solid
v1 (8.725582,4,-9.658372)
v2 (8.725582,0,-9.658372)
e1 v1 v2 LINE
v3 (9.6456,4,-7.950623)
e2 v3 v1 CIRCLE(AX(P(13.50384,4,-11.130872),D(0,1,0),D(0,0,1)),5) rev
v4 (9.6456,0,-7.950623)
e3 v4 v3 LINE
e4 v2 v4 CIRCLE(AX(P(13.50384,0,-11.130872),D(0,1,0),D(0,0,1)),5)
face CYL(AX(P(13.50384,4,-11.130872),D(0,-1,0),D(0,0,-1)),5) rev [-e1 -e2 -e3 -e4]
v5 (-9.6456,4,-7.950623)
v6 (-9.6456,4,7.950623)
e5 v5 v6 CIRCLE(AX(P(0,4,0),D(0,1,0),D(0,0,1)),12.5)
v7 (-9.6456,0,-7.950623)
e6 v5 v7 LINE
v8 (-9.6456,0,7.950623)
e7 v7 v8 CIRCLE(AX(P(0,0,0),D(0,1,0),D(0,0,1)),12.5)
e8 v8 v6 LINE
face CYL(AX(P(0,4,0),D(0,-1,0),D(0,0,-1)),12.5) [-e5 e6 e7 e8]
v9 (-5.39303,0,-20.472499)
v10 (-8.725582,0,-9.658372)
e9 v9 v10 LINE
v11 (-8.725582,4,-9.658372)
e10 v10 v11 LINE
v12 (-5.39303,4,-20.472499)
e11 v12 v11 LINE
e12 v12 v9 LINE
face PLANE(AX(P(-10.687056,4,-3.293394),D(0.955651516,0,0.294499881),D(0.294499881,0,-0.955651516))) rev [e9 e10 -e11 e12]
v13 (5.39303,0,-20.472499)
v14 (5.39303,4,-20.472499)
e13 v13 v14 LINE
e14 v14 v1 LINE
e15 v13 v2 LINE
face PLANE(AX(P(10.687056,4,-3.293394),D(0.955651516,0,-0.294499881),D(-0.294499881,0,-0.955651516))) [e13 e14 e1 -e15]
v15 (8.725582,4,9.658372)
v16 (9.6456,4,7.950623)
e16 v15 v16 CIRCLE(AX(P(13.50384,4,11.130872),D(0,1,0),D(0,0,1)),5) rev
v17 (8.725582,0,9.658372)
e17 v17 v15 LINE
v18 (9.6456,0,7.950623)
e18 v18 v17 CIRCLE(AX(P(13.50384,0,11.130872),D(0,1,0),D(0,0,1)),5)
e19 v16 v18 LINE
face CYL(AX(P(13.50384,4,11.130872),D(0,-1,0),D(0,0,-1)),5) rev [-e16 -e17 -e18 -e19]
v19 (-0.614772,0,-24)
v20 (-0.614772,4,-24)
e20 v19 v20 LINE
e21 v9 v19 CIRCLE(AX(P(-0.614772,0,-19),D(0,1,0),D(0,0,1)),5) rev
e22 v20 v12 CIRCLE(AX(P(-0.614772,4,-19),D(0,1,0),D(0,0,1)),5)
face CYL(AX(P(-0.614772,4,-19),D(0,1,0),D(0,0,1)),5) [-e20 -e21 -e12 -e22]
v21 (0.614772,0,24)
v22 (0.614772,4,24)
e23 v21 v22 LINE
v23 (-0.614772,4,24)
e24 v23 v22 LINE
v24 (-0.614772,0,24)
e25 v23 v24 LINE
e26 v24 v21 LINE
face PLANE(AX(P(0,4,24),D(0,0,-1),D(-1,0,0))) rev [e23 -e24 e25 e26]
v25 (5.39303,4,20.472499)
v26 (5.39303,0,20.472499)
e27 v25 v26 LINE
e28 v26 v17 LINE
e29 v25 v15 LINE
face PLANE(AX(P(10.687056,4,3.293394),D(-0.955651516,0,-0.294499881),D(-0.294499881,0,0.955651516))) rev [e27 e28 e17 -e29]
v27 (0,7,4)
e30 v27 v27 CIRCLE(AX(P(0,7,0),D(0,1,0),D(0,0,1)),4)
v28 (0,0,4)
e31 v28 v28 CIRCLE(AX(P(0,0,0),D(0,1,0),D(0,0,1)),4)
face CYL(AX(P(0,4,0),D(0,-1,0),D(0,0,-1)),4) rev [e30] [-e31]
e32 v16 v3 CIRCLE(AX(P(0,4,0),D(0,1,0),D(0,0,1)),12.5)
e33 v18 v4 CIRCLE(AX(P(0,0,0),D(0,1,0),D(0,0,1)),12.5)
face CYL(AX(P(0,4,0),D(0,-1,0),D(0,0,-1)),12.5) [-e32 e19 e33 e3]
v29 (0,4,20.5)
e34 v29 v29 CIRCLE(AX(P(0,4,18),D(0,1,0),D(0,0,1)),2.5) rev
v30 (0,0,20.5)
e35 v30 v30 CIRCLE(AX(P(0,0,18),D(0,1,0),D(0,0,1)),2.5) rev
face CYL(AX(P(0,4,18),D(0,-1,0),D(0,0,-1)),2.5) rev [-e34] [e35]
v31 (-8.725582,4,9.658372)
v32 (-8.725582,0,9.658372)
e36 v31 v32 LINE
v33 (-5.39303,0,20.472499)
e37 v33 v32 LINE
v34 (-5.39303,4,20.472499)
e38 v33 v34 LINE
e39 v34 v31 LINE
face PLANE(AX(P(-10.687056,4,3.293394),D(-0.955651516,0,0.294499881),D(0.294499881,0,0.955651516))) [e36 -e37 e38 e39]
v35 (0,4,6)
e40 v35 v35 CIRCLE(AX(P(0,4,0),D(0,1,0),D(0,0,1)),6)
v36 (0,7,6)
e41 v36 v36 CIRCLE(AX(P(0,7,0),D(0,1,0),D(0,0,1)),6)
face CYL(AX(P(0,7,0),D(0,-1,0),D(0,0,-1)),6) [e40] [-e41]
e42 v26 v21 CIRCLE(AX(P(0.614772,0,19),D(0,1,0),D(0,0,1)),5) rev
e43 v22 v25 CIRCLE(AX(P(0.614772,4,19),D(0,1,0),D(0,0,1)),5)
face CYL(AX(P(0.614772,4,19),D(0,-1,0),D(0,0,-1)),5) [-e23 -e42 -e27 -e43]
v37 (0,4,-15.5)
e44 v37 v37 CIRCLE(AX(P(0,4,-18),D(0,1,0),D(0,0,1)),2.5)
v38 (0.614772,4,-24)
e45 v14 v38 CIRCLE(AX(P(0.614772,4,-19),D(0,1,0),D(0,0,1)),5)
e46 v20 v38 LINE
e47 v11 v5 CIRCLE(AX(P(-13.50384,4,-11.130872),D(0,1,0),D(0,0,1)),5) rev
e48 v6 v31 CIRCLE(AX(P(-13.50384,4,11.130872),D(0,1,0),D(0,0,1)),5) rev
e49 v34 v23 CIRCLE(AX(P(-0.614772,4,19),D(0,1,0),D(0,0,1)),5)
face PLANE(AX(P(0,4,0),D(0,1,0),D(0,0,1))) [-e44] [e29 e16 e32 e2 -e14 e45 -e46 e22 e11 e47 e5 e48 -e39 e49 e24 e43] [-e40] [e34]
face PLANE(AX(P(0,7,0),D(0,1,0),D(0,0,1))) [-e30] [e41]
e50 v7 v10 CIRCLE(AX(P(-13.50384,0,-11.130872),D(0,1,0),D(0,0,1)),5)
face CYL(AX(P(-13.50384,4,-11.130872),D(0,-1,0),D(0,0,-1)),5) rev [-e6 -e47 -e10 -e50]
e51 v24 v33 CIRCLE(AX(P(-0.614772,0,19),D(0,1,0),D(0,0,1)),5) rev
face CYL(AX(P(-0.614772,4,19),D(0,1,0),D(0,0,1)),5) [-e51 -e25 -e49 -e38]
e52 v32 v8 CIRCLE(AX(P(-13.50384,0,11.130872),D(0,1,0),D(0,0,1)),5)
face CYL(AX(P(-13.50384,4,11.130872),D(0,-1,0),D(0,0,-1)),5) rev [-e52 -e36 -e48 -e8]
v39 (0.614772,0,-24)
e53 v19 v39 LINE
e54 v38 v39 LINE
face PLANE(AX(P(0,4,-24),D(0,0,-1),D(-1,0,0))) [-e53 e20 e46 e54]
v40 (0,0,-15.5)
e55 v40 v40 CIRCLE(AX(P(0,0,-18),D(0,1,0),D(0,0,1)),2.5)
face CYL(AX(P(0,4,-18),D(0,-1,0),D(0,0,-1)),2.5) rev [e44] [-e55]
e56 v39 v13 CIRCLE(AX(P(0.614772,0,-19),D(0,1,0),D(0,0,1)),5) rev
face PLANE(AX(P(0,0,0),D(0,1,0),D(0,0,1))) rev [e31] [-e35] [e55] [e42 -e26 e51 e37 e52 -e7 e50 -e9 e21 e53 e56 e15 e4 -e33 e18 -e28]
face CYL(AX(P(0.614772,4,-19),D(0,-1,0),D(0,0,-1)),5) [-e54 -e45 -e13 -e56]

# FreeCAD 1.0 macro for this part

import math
import FreeCAD as App
import Part
import Sketcher
from FreeCAD import Vector
Q = App.Units.Quantity


def edges_at(feature, points):
    """Names of the edges that pass closest to the given points."""
    edges = feature.Shape.Edges
    near = lambda p: min(range(len(edges)), key=lambda i: edges[i].distToShape(Part.Vertex(*p))[0])
    return sorted({f"Edge{near(p) + 1}" for p in points})

doc = App.newDocument("Part")
body = doc.addObject("PartDesign::Body", "Body")

# Sketch on XZ plane
sketch1 = body.newObject("Sketcher::SketchObject", "Sketch")
sketch1.AttachmentSupport = (doc.getObject("XZ_Plane"), [""])
sketch1.MapMode = "FlatFace"
sketch1.addGeometry(Part.LineSegment(Vector(-9, 8.6, 0), Vector(-4.3, 24, 0)), False)
sketch1.addGeometry(Part.LineSegment(Vector(-4.3, 24, 0), Vector(4.3, 24, 0)), False)
sketch1.addGeometry(Part.LineSegment(Vector(4.3, 24, 0), Vector(9, 8.6, 0)), False)
sketch1.addGeometry(Part.ArcOfCircle(Part.Circle(Vector(0, 0, 0), Vector(0, 0, 1), 12.5), math.radians(-44), math.radians(44)), False)
sketch1.addGeometry(Part.LineSegment(Vector(9, -8.6, 0), Vector(4.3, -24, 0)), False)
sketch1.addGeometry(Part.LineSegment(Vector(4.3, -24, 0), Vector(-4.3, -24, 0)), False)
sketch1.addGeometry(Part.LineSegment(Vector(-4.3, -24, 0), Vector(-9, -8.6, 0)), False)
sketch1.addGeometry(Part.ArcOfCircle(Part.Circle(Vector(0, 0, 0), Vector(0, 0, 1), 12.5), math.radians(136), math.radians(224)), False)
sketch1.addGeometry(Part.Circle(Vector(0, 18, 0), Vector(0, 0, 1), 2.5), False)
sketch1.addGeometry(Part.Circle(Vector(0, 0, 0), Vector(0, 0, 1), 4), False)
sketch1.addGeometry(Part.Circle(Vector(0, -18, 0), Vector(0, 0, 1), 2.5), False)
sketch1.addConstraint(Sketcher.Constraint("Coincident", 0, 2, 1, 1))
sketch1.addConstraint(Sketcher.Constraint("Coincident", 1, 2, 2, 1))
sketch1.addConstraint(Sketcher.Constraint("Coincident", 2, 2, 3, 2))
sketch1.addConstraint(Sketcher.Constraint("Coincident", 3, 1, 4, 1))
sketch1.addConstraint(Sketcher.Constraint("Coincident", 4, 2, 5, 1))
sketch1.addConstraint(Sketcher.Constraint("Coincident", 5, 2, 6, 1))
sketch1.addConstraint(Sketcher.Constraint("Coincident", 6, 2, 7, 2))
sketch1.addConstraint(Sketcher.Constraint("Coincident", 7, 1, 0, 1))
sketch1.addConstraint(Sketcher.Constraint("Horizontal", 1))
sketch1.addConstraint(Sketcher.Constraint("Horizontal", 5))
sketch1.addConstraint(Sketcher.Constraint("Coincident", 3, 3, -1, 1))
sketch1.addConstraint(Sketcher.Constraint("Coincident", 7, 3, -1, 1))
sketch1.addConstraint(Sketcher.Constraint("Coincident", 9, 3, -1, 1))
sketch1.addConstraint(Sketcher.Constraint("Equal", 3, 7))
sketch1.addConstraint(Sketcher.Constraint("Equal", 8, 10))
sketch1.addConstraint(Sketcher.Constraint("Symmetric", 8, 3, 10, 3, -1, 1))
sketch1.addConstraint(Sketcher.Constraint("Symmetric", 0, 2, 4, 2, -1, 1))
sketch1.addConstraint(Sketcher.Constraint("PointOnObject", 8, 3, -2))
sketch1.addConstraint(Sketcher.Constraint("Parallel", 0, 4))
sketch1.addConstraint(Sketcher.Constraint("Parallel", 2, 6))
sketch1.addConstraint(Sketcher.Constraint("Horizontal", 3, 1, 6, 2))
sketch1.addConstraint(Sketcher.Constraint("Horizontal", 2, 2, 7, 1))
sketch1.addConstraint(Sketcher.Constraint("Vertical", 1, 2, 4, 2))
sketch1.addConstraint(Sketcher.Constraint("Diameter", 8, Q("5 mm")))
sketch1.addConstraint(Sketcher.Constraint("Diameter", 9, Q("8 mm")))
sketch1.addConstraint(Sketcher.Constraint("Radius", 3, Q("12.5 mm")))
sketch1.addConstraint(Sketcher.Constraint("DistanceY", -1, 1, 8, 3, Q("18 mm")))
sketch1.addConstraint(Sketcher.Constraint("DistanceY", -1, 1, 0, 2, Q("24 mm")))
sketch1.addConstraint(Sketcher.Constraint("DistanceY", 3, 1, 2, 2, Q("17.2611 mm")))
sketch1.addConstraint(Sketcher.Constraint("DistanceX", 1, 1, 1, 2, Q("8.611944 mm")))
pad1 = body.newObject("PartDesign::Pad", "Pad")
pad1.Profile = sketch1
pad1.Length = 4
pad1.Reversed = True
doc.recompute()

fillet = body.newObject("PartDesign::Fillet", "Fillet")
fillet.Base = (pad1, edges_at(pad1, [
    (4.306, 2, 24),
    (-4.306, 2, 24),
    (-9.042, 2, 8.631),
    (-9.042, 2, -8.631),
    (-4.306, 2, -24),
    (4.306, 2, -24),
    (9.042, 2, -8.631),
    (9.042, 2, 8.631),
]))
fillet.Radius = 5

# Sketch on XZ plane
sketch2 = body.newObject("Sketcher::SketchObject", "Sketch001")
sketch2.AttachmentSupport = (doc.getObject("XZ_Plane"), [""])
sketch2.MapMode = "FlatFace"
sketch2.AttachmentOffset = App.Placement(Vector(0, 0, -4), App.Rotation())
sketch2.addGeometry(Part.Circle(Vector(0, 0, 0), Vector(0, 0, 1), 6), False)
sketch2.addGeometry(Part.Circle(Vector(0, 0, 0), Vector(0, 0, 1), 4), False)
sketch2.addConstraint(Sketcher.Constraint("Coincident", 0, 3, -1, 1))
sketch2.addConstraint(Sketcher.Constraint("Coincident", 1, 3, -1, 1))
sketch2.addConstraint(Sketcher.Constraint("Diameter", 0, Q("12 mm")))
sketch2.addConstraint(Sketcher.Constraint("Diameter", 1, Q("8 mm")))
pad2 = body.newObject("PartDesign::Pad", "Pad001")
pad2.Profile = sketch2
pad2.Length = 3
pad2.Reversed = True

doc.recompute()
